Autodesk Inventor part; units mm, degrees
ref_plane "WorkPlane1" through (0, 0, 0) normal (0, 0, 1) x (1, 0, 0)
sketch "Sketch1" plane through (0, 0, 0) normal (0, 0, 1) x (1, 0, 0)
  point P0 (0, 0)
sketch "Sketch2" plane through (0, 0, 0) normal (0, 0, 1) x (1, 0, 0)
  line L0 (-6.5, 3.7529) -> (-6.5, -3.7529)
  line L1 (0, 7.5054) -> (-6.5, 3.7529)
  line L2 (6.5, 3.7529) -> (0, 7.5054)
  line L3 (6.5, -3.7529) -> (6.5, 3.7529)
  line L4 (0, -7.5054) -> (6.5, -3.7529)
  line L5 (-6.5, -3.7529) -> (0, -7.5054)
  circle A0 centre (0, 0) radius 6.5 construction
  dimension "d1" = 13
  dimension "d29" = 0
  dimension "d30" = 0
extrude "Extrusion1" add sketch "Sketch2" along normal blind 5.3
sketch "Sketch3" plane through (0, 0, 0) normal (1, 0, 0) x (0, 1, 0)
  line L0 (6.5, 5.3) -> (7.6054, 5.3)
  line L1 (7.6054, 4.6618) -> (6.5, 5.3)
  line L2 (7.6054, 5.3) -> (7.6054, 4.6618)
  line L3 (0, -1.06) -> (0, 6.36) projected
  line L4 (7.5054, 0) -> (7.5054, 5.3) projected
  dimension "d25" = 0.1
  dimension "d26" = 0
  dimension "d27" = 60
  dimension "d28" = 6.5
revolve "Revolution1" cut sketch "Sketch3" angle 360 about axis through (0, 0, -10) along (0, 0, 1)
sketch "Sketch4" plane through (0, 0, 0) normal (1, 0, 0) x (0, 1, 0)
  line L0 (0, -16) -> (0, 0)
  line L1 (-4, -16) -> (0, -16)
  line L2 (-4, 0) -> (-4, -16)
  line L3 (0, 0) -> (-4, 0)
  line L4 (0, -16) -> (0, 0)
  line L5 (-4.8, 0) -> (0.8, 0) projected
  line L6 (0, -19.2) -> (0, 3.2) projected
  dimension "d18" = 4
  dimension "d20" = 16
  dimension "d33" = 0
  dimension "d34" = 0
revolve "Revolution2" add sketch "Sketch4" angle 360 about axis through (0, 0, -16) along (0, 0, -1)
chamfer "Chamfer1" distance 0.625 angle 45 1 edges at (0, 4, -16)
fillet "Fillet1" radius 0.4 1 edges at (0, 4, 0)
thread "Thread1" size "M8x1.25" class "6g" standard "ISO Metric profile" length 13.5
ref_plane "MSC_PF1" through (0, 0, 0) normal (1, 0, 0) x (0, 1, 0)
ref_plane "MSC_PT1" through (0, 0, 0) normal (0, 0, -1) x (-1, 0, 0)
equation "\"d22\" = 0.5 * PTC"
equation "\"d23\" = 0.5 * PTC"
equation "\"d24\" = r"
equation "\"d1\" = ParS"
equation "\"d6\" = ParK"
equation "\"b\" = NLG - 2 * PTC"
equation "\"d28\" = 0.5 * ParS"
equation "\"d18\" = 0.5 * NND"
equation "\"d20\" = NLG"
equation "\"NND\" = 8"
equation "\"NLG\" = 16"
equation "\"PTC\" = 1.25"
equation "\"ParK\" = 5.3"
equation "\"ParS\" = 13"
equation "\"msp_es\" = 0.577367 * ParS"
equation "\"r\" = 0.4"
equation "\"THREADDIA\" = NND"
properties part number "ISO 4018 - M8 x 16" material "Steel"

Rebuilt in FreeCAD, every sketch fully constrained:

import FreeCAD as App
import Part
import Sketcher
Q = App.Units.Quantity


def edges_at(feature, points):
    """Names of the edges that pass closest to the given points."""
    edges = feature.Shape.Edges
    near = lambda p: min(range(len(edges)), key=lambda i: edges[i].distToShape(Part.Vertex(*p))[0])
    return sorted({f"Edge{near(p) + 1}" for p in points})

doc = App.newDocument("Part")
body = doc.addObject("PartDesign::Body", "Body")

sketch1 = doc.addObject("Sketcher::SketchObject", "Sketch")
body.addObject(sketch1)
sketch1.AttachmentSupport = (doc.XY_Plane, [""])
sketch1.MapMode = "FlatFace"
sketch1.addGeometry(Part.LineSegment(App.Vector(0, 8, 0), App.Vector(-6, 4, 0)), False)
sketch1.addGeometry(Part.LineSegment(App.Vector(-6, 4, 0), App.Vector(-6, -4, 0)), False)
sketch1.addGeometry(Part.LineSegment(App.Vector(-6, -4, 0), App.Vector(0, -8, 0)), False)
sketch1.addGeometry(Part.LineSegment(App.Vector(0, -8, 0), App.Vector(6, -4, 0)), False)
sketch1.addGeometry(Part.LineSegment(App.Vector(6, -4, 0), App.Vector(6, 4, 0)), False)
sketch1.addGeometry(Part.LineSegment(App.Vector(6, 4, 0), App.Vector(0, 8, 0)), False)
sketch1.addConstraint(Sketcher.Constraint("Coincident", 0, 2, 1, 1))
sketch1.addConstraint(Sketcher.Constraint("Coincident", 1, 2, 2, 1))
sketch1.addConstraint(Sketcher.Constraint("Coincident", 2, 2, 3, 1))
sketch1.addConstraint(Sketcher.Constraint("Coincident", 3, 2, 4, 1))
sketch1.addConstraint(Sketcher.Constraint("Coincident", 4, 2, 5, 1))
sketch1.addConstraint(Sketcher.Constraint("Coincident", 5, 2, 0, 1))
sketch1.addConstraint(Sketcher.Constraint("Vertical", 1))
sketch1.addConstraint(Sketcher.Constraint("Vertical", 4))
sketch1.addConstraint(Sketcher.Constraint("Symmetric", 0, 2, 3, 2, -1, 1))
sketch1.addConstraint(Sketcher.Constraint("Symmetric", 2, 2, 5, 2, -1, 1))
sketch1.addConstraint(Sketcher.Constraint("PointOnObject", 2, 2, -2))
sketch1.addConstraint(Sketcher.Constraint("Parallel", 2, 5))
sketch1.addConstraint(Sketcher.Constraint("Horizontal", 1, 2, 3, 2))
sketch1.addConstraint(Sketcher.Constraint("DistanceX", 1, 2, 3, 2, 13.0))
sketch1.addConstraint(Sketcher.Constraint("DistanceY", 1, 2, 1, 1, 7.5058))
sketch1.addConstraint(Sketcher.Constraint("Distance", 0, 7.5054))
pad1 = doc.addObject("PartDesign::Pad", "Pad")
body.addObject(pad1)
pad1.Profile = sketch1
pad1.Length = 5.3

sketch2 = doc.addObject("Sketcher::SketchObject", "Sketch001")
body.addObject(sketch2)
sketch2.AttachmentSupport = (doc.YZ_Plane, [""])
sketch2.MapMode = "FlatFace"
sketch2.addGeometry(Part.LineSegment(App.Vector(6.5, 5.3, 0), App.Vector(7.6, 4.7, 0)), False)
sketch2.addGeometry(Part.LineSegment(App.Vector(7.6, 4.7, 0), App.Vector(7.6, 5.3, 0)), False)
sketch2.addGeometry(Part.LineSegment(App.Vector(7.6, 5.3, 0), App.Vector(6.5, 5.3, 0)), False)
sketch2.addConstraint(Sketcher.Constraint("Coincident", 0, 2, 1, 1))
sketch2.addConstraint(Sketcher.Constraint("Coincident", 1, 2, 2, 1))
sketch2.addConstraint(Sketcher.Constraint("Coincident", 2, 2, 0, 1))
sketch2.addConstraint(Sketcher.Constraint("Vertical", 1))
sketch2.addConstraint(Sketcher.Constraint("Horizontal", 2))
sketch2.addConstraint(Sketcher.Constraint("DistanceX", -1, 1, 2, 2, 6.5))
sketch2.addConstraint(Sketcher.Constraint("Angle", 0, Q("-30 deg")))
sketch2.addConstraint(Sketcher.Constraint("DistanceY", -1, 1, 1, 2, 5.3))
sketch2.addConstraint(Sketcher.Constraint("DistanceX", 2, 2, 2, 1, 1.1054))
groove = doc.addObject("PartDesign::Groove", "Groove")
body.addObject(groove)
groove.Profile = sketch2
groove.ReferenceAxis = (sketch2, ["V_Axis"])
groove.Angle = 360

sketch3 = doc.addObject("Sketcher::SketchObject", "Sketch002")
body.addObject(sketch3)
sketch3.AttachmentSupport = (doc.YZ_Plane, [""])
sketch3.MapMode = "FlatFace"
sketch3.addGeometry(Part.LineSegment(App.Vector(-4, -16, 0), App.Vector(0, -16, 0)), False)
sketch3.addGeometry(Part.LineSegment(App.Vector(0, -16, 0), App.Vector(0, 0, 0)), False)
sketch3.addGeometry(Part.LineSegment(App.Vector(0, 0, 0), App.Vector(-4, 0, 0)), False)
sketch3.addGeometry(Part.LineSegment(App.Vector(-4, 0, 0), App.Vector(-4, -16, 0)), False)
sketch3.addConstraint(Sketcher.Constraint("Coincident", 0, 2, 1, 1))
sketch3.addConstraint(Sketcher.Constraint("Coincident", 1, 2, 2, 1))
sketch3.addConstraint(Sketcher.Constraint("Coincident", 2, 2, 3, 1))
sketch3.addConstraint(Sketcher.Constraint("Coincident", 3, 2, 0, 1))
sketch3.addConstraint(Sketcher.Constraint("Horizontal", 0))
sketch3.addConstraint(Sketcher.Constraint("Vertical", 1))
sketch3.addConstraint(Sketcher.Constraint("Horizontal", 2))
sketch3.addConstraint(Sketcher.Constraint("Vertical", 3))
sketch3.addConstraint(Sketcher.Constraint("Coincident", 1, 2, -1, 1))
sketch3.addConstraint(Sketcher.Constraint("DistanceX", 0, 1, 0, 2, 4.0))
sketch3.addConstraint(Sketcher.Constraint("DistanceY", 1, 1, 1, 2, 16.0))
revolution = doc.addObject("PartDesign::Revolution", "Revolution")
body.addObject(revolution)
revolution.Profile = sketch3
revolution.ReferenceAxis = (sketch3, ["V_Axis"])
revolution.Angle = 360
doc.recompute()

chamfer = doc.addObject("PartDesign::Chamfer", "Chamfer")
body.addObject(chamfer)
chamfer.Base = (revolution, edges_at(revolution, [(0, 4, -16)]))
chamfer.Size = 0.625
doc.recompute()

fillet = doc.addObject("PartDesign::Fillet", "Fillet")
body.addObject(fillet)
fillet.Base = (chamfer, edges_at(chamfer, [(0, 4, 0)]))
fillet.Radius = 0.4

doc.recompute()
